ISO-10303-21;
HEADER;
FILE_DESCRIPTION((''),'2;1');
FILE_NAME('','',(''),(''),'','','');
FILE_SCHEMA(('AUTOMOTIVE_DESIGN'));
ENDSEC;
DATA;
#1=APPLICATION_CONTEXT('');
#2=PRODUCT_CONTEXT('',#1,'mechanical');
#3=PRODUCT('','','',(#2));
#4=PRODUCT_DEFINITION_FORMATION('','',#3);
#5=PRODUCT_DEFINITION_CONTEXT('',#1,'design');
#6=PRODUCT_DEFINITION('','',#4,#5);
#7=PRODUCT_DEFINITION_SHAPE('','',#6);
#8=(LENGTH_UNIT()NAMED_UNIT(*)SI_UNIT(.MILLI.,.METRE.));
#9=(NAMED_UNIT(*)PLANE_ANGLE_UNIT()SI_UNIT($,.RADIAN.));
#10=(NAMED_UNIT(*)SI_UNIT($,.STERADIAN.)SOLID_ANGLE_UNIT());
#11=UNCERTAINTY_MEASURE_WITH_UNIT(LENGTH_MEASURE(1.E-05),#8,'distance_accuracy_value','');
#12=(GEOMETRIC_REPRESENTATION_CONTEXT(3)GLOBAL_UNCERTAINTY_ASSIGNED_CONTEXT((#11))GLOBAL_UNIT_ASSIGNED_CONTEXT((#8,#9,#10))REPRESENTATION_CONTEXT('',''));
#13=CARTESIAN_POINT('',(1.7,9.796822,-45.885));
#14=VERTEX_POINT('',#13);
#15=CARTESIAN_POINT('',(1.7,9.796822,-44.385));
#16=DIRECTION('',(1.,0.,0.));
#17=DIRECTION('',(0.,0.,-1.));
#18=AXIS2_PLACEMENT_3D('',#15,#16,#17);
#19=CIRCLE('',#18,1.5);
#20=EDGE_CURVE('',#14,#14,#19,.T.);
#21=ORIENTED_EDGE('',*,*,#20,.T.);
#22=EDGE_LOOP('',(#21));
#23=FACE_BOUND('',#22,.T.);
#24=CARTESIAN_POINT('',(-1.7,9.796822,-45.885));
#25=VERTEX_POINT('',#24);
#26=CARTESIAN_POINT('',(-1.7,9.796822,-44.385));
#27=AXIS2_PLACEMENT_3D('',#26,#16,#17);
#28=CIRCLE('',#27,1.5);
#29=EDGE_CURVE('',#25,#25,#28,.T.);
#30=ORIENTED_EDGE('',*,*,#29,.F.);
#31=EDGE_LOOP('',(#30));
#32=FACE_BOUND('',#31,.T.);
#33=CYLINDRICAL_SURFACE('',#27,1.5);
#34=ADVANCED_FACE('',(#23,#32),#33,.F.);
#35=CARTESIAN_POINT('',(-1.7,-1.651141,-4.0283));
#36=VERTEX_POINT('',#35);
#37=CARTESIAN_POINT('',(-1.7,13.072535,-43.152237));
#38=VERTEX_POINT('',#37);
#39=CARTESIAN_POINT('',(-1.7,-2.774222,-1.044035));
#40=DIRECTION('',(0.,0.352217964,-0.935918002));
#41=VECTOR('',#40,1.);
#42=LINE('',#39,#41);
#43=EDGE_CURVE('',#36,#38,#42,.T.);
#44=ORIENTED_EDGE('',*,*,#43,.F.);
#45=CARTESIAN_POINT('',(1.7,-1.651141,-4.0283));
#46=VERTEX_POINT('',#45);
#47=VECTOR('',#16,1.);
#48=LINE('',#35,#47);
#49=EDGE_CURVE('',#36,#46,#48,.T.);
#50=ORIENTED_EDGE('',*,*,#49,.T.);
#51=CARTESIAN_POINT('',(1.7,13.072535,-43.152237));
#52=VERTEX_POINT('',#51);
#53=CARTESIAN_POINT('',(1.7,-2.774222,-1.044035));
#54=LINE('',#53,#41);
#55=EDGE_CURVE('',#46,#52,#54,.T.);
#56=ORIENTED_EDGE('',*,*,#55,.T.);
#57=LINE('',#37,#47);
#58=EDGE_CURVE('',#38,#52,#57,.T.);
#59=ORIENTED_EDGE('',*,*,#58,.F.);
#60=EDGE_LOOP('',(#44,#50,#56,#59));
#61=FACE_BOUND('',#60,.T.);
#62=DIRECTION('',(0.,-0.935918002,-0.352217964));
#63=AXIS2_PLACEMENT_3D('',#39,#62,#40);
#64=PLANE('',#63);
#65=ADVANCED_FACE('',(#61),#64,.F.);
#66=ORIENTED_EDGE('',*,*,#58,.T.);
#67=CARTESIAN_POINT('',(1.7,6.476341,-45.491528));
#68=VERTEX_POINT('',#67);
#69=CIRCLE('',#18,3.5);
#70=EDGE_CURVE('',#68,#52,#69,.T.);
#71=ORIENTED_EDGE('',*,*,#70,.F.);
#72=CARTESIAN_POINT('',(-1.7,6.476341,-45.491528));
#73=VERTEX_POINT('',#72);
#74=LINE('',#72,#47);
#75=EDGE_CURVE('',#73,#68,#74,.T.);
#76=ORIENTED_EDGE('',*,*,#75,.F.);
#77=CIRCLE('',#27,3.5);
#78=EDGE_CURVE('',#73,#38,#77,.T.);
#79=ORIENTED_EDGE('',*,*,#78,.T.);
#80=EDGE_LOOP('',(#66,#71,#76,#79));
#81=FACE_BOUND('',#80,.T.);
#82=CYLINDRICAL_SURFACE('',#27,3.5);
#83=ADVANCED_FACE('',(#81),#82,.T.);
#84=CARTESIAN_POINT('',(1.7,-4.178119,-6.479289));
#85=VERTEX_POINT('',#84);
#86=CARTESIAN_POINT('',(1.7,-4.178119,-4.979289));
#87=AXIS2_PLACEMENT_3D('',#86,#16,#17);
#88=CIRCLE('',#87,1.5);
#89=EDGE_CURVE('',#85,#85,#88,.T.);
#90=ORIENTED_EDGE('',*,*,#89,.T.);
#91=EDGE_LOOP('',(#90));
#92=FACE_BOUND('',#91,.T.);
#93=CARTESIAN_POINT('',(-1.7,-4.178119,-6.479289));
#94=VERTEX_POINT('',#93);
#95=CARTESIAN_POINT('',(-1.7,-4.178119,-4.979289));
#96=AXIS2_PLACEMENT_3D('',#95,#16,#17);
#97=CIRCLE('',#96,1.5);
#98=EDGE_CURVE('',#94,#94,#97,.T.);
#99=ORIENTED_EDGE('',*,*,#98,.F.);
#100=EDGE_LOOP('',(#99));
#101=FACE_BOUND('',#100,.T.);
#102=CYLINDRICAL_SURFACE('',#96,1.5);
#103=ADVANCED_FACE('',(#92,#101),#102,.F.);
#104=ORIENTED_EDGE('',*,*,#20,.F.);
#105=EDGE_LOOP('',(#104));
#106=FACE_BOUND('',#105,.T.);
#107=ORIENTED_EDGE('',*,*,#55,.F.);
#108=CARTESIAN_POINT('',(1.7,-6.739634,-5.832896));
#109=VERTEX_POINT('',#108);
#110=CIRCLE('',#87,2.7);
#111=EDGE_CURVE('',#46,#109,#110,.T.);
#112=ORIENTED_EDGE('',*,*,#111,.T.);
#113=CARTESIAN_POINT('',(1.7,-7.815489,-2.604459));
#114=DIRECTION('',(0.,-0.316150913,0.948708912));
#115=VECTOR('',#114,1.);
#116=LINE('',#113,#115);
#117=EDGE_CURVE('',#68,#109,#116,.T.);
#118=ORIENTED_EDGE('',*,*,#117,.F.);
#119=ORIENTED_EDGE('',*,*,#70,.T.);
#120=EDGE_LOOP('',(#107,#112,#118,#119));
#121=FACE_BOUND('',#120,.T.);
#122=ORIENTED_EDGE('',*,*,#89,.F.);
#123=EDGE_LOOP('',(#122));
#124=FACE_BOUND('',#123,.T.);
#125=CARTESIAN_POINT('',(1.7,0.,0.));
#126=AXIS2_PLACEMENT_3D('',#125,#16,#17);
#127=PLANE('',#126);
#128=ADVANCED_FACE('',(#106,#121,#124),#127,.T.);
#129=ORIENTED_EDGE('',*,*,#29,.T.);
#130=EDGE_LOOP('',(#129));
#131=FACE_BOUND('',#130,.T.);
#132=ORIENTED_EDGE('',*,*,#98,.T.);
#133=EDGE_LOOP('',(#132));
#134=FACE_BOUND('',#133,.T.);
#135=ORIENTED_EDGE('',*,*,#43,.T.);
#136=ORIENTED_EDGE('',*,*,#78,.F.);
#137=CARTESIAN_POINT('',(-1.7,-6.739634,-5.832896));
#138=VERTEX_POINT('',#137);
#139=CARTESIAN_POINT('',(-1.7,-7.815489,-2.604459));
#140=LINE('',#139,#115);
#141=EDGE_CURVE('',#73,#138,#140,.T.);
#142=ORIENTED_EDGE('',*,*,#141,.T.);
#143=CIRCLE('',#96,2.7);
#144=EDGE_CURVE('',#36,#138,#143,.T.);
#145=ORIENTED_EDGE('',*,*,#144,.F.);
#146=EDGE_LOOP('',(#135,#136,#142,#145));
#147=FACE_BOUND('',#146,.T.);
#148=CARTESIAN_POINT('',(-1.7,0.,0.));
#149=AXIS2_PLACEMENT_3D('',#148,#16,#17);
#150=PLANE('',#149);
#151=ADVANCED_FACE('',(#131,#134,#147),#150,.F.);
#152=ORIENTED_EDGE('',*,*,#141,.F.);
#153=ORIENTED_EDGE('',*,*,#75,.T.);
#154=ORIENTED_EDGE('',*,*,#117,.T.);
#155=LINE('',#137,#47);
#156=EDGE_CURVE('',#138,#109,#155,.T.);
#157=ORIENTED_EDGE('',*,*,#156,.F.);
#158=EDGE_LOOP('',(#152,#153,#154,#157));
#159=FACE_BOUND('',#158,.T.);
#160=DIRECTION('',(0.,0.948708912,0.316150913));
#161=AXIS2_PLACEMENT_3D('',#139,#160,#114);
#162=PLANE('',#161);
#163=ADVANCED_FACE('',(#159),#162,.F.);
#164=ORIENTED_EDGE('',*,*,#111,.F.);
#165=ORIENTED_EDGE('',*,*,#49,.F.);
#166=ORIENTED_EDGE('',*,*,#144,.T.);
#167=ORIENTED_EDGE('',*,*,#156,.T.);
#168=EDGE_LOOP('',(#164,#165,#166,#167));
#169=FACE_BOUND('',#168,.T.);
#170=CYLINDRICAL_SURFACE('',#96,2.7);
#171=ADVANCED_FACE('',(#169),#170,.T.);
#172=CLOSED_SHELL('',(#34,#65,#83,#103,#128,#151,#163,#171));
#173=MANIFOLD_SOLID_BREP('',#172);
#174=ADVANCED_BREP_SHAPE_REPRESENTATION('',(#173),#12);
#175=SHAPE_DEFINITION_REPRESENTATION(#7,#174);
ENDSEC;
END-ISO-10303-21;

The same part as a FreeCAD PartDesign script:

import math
import FreeCAD as App
import Part
import Sketcher

doc = App.newDocument("Part")
body = doc.addObject("PartDesign::Body", "Body")

# Sketch on YZ plane
sketch1 = doc.addObject("Sketcher::SketchObject", "Sketch")
body.addObject(sketch1)
sketch1.AttachmentSupport = (doc.YZ_Plane, [""])
sketch1.MapMode = "FlatFace"
sketch1.addGeometry(Part.LineSegment(App.Vector(13.1, -43.2, 0), App.Vector(-1.7, -4, 0)), False)
sketch1.addGeometry(Part.ArcOfCircle(Part.Circle(App.Vector(-4.2, -5, 0), App.Vector(0, 0, 1), 2.7), math.radians(21), math.radians(198)), False)
sketch1.addGeometry(Part.LineSegment(App.Vector(-6.7, -5.8, 0), App.Vector(6.5, -45.5, 0)), False)
sketch1.addGeometry(Part.ArcOfCircle(Part.Circle(App.Vector(9.8, -44.4, 0), App.Vector(0, 0, 1), 3.5), math.radians(-162), math.radians(21)), False)
sketch1.addGeometry(Part.Circle(App.Vector(-4.2, -5, 0), App.Vector(0, 0, 1), 1.5), False)
sketch1.addGeometry(Part.Circle(App.Vector(9.8, -44.4, 0), App.Vector(0, 0, 1), 1.5), False)
sketch1.addConstraint(Sketcher.Constraint("Tangent", 0, 2, 1, 1))
sketch1.addConstraint(Sketcher.Constraint("Tangent", 1, 2, 2, 1))
sketch1.addConstraint(Sketcher.Constraint("Tangent", 2, 2, 3, 1))
sketch1.addConstraint(Sketcher.Constraint("Tangent", 3, 2, 0, 1))
sketch1.addConstraint(Sketcher.Constraint("Coincident", 4, 3, 1, 3))
sketch1.addConstraint(Sketcher.Constraint("Coincident", 5, 3, 3, 3))
sketch1.addConstraint(Sketcher.Constraint("Equal", 4, 5))
sketch1.addConstraint(Sketcher.Constraint("Diameter", 4, 3.0))
sketch1.addConstraint(Sketcher.Constraint("Radius", 1, 2.7))
sketch1.addConstraint(Sketcher.Constraint("Radius", 3, 3.5))
sketch1.addConstraint(Sketcher.Constraint("DistanceY", 3, 3, -1, 1, 44.385))
sketch1.addConstraint(Sketcher.Constraint("DistanceY", 0, 2, -1, 1, 4.0283))
sketch1.addConstraint(Sketcher.Constraint("Distance", 0, 41.80274))
sketch1.addConstraint(Sketcher.Constraint("DistanceX", 1, 3, -1, 1, 4.178119))
pad1 = doc.addObject("PartDesign::Pad", "Pad")
body.addObject(pad1)
pad1.Profile = sketch1
pad1.Type = "TwoLengths"
pad1.Length = 1.7
pad1.Length2 = 1.7

doc.recompute()
